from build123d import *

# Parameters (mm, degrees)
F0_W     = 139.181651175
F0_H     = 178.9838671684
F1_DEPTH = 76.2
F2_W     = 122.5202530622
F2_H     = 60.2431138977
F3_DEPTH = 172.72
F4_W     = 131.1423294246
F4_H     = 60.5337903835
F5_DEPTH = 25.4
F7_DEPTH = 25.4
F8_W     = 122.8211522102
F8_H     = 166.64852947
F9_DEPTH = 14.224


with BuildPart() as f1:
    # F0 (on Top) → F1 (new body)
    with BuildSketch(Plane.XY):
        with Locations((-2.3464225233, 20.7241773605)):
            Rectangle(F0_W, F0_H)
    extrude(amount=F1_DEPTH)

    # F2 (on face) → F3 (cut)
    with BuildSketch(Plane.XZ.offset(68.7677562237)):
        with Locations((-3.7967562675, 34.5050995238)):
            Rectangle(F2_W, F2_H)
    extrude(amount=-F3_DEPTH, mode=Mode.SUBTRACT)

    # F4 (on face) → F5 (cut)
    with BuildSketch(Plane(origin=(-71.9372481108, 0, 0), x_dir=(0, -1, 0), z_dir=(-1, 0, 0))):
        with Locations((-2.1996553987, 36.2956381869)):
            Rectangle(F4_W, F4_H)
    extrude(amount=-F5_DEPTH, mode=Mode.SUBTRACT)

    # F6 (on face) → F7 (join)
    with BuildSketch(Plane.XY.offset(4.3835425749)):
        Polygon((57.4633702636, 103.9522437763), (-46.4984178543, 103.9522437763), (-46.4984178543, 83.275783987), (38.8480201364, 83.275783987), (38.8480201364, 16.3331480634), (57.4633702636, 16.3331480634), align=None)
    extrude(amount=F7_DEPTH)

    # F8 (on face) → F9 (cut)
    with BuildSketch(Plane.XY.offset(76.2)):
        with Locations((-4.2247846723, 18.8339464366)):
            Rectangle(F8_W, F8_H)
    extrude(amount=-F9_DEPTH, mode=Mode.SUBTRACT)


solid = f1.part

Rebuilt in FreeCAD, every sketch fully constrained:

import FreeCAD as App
import Part
import Sketcher
Q = App.Units.Quantity


def add_polygon(sketch, points):
    """Adds a closed chain of lines whose ends are joined by coincident constraints."""
    first, n = sketch.GeometryCount, len(points)
    for a, b in zip(points, points[1:] + points[:1]):
        sketch.addGeometry(Part.LineSegment(App.Vector(*a, 0), App.Vector(*b, 0)), False)
    for i in range(n):
        sketch.addConstraint(Sketcher.Constraint("Coincident", first + i, 2, first + (i + 1) % n, 1))

doc = App.newDocument("Part")
body = doc.addObject("PartDesign::Body", "Body")

sketch1 = body.newObject("Sketcher::SketchObject", "Sketch")
sketch1.AttachmentSupport = (doc.getObject("XY_Plane"), [""])
sketch1.MapMode = "FlatFace"
add_polygon(sketch1, [(-72, 110), (-72, -69), (67, -69), (67, 110)])
sketch1.addConstraint([
    Sketcher.Constraint("Vertical", 0),
    Sketcher.Constraint("Horizontal", 1),
    Sketcher.Constraint("Vertical", 2),
    Sketcher.Constraint("Horizontal", 3),
    Sketcher.Constraint("DistanceX", 1, 1, 1, 2, 139.181651),
    Sketcher.Constraint("DistanceY", 0, 2, 0, 1, 178.983867),
    Sketcher.Constraint("DistanceX", 0, 2, -1, 1, 71.937248),
    Sketcher.Constraint("DistanceY", -1, 1, 2, 2, 110.216111),
])
pad1 = body.newObject("PartDesign::Pad", "Pad")
pad1.Profile = sketch1
pad1.Length = Q("3 in")

sketch2 = body.newObject("Sketcher::SketchObject", "Sketch001")
sketch2.AttachmentSupport = (doc.getObject("XZ_Plane"), [""])
sketch2.MapMode = "FlatFace"
sketch2.AttachmentOffset = App.Placement(App.Vector(0, 0, 68.767756), App.Rotation())
add_polygon(sketch2, [(-65, 65), (-65, 4), (57, 4), (57, 65)])
sketch2.addConstraint([
    Sketcher.Constraint("Vertical", 0),
    Sketcher.Constraint("Horizontal", 1),
    Sketcher.Constraint("Vertical", 2),
    Sketcher.Constraint("Horizontal", 3),
    Sketcher.Constraint("DistanceX", 1, 1, 1, 2, 122.520253),
    Sketcher.Constraint("DistanceY", 0, 2, 0, 1, 60.243114),
    Sketcher.Constraint("DistanceX", -1, 1, 1, 2, 57.46337),
    Sketcher.Constraint("DistanceY", -1, 1, 0, 2, 4.383543),
])
pocket1 = body.newObject("PartDesign::Pocket", "Pocket")
pocket1.Profile = sketch2
pocket1.Length = Q("6.8 in")

sketch3 = body.newObject("Sketcher::SketchObject", "Sketch002")
sketch3.AttachmentSupport = (doc.getObject("YZ_Plane"), [""])
sketch3.MapMode = "FlatFace"
sketch3.AttachmentOffset = App.Placement(App.Vector(0, 0, -71.937248), App.Rotation())
add_polygon(sketch3, [(68, 67), (68, 6), (-63, 6), (-63, 67)])
sketch3.addConstraint([
    Sketcher.Constraint("Vertical", 0),
    Sketcher.Constraint("Horizontal", 1),
    Sketcher.Constraint("Vertical", 2),
    Sketcher.Constraint("Horizontal", 3),
    Sketcher.Constraint("DistanceX", 1, 2, 1, 1, 131.142329),
    Sketcher.Constraint("DistanceY", 0, 2, 0, 1, 60.53379),
    Sketcher.Constraint("DistanceX", -1, 1, 0, 2, 67.77082),
    Sketcher.Constraint("DistanceY", -1, 1, 0, 2, 6.028743),
])
pocket2 = body.newObject("PartDesign::Pocket", "Pocket001")
pocket2.Profile = sketch3
pocket2.Length = Q("1 in")
pocket2.Reversed = True

sketch4 = body.newObject("Sketcher::SketchObject", "Sketch003")
sketch4.AttachmentSupport = (doc.getObject("XY_Plane"), [""])
sketch4.MapMode = "FlatFace"
sketch4.AttachmentOffset = App.Placement(App.Vector(0, 0, 4.383543), App.Rotation())
add_polygon(sketch4, [(57, 104), (-46, 104), (-46, 83), (39, 83), (39, 16), (57, 16)])
sketch4.addConstraint([
    Sketcher.Constraint("Horizontal", 0),
    Sketcher.Constraint("Vertical", 1),
    Sketcher.Constraint("Horizontal", 2),
    Sketcher.Constraint("Vertical", 3),
    Sketcher.Constraint("Horizontal", 4),
    Sketcher.Constraint("Vertical", 5),
    Sketcher.Constraint("DistanceX", 0, 2, 0, 1, 103.961788),
    Sketcher.Constraint("DistanceX", 4, 1, 4, 2, 18.61535),
    Sketcher.Constraint("DistanceY", 1, 2, 1, 1, 20.67646),
    Sketcher.Constraint("DistanceY", 3, 2, 3, 1, 66.942636),
    Sketcher.Constraint("DistanceX", -1, 1, 2, 2, 38.84802),
    Sketcher.Constraint("DistanceY", -1, 1, 3, 2, 16.333148),
])
pad2 = body.newObject("PartDesign::Pad", "Pad001")
pad2.Profile = sketch4
pad2.Length = Q("1 in")

sketch5 = body.newObject("Sketcher::SketchObject", "Sketch004")
sketch5.AttachmentSupport = (doc.getObject("XY_Plane"), [""])
sketch5.MapMode = "FlatFace"
sketch5.AttachmentOffset = App.Placement(App.Vector(0, 0, 3 * 25.4), App.Rotation())
add_polygon(sketch5, [(-66, 102), (-66, -64), (57, -64), (57, 102)])
sketch5.addConstraint([
    Sketcher.Constraint("Vertical", 0),
    Sketcher.Constraint("Horizontal", 1),
    Sketcher.Constraint("Vertical", 2),
    Sketcher.Constraint("Horizontal", 3),
    Sketcher.Constraint("DistanceY", 0, 2, 0, 1, 166.648529),
    Sketcher.Constraint("DistanceX", 1, 1, 1, 2, 122.821152),
    Sketcher.Constraint("DistanceX", 0, 2, -1, 1, 65.635361),
    Sketcher.Constraint("DistanceY", 0, 2, -1, 1, 64.490318),
])
pocket3 = body.newObject("PartDesign::Pocket", "Pocket002")
pocket3.Profile = sketch5
pocket3.Length = Q("0.56 in")

doc.recompute()
